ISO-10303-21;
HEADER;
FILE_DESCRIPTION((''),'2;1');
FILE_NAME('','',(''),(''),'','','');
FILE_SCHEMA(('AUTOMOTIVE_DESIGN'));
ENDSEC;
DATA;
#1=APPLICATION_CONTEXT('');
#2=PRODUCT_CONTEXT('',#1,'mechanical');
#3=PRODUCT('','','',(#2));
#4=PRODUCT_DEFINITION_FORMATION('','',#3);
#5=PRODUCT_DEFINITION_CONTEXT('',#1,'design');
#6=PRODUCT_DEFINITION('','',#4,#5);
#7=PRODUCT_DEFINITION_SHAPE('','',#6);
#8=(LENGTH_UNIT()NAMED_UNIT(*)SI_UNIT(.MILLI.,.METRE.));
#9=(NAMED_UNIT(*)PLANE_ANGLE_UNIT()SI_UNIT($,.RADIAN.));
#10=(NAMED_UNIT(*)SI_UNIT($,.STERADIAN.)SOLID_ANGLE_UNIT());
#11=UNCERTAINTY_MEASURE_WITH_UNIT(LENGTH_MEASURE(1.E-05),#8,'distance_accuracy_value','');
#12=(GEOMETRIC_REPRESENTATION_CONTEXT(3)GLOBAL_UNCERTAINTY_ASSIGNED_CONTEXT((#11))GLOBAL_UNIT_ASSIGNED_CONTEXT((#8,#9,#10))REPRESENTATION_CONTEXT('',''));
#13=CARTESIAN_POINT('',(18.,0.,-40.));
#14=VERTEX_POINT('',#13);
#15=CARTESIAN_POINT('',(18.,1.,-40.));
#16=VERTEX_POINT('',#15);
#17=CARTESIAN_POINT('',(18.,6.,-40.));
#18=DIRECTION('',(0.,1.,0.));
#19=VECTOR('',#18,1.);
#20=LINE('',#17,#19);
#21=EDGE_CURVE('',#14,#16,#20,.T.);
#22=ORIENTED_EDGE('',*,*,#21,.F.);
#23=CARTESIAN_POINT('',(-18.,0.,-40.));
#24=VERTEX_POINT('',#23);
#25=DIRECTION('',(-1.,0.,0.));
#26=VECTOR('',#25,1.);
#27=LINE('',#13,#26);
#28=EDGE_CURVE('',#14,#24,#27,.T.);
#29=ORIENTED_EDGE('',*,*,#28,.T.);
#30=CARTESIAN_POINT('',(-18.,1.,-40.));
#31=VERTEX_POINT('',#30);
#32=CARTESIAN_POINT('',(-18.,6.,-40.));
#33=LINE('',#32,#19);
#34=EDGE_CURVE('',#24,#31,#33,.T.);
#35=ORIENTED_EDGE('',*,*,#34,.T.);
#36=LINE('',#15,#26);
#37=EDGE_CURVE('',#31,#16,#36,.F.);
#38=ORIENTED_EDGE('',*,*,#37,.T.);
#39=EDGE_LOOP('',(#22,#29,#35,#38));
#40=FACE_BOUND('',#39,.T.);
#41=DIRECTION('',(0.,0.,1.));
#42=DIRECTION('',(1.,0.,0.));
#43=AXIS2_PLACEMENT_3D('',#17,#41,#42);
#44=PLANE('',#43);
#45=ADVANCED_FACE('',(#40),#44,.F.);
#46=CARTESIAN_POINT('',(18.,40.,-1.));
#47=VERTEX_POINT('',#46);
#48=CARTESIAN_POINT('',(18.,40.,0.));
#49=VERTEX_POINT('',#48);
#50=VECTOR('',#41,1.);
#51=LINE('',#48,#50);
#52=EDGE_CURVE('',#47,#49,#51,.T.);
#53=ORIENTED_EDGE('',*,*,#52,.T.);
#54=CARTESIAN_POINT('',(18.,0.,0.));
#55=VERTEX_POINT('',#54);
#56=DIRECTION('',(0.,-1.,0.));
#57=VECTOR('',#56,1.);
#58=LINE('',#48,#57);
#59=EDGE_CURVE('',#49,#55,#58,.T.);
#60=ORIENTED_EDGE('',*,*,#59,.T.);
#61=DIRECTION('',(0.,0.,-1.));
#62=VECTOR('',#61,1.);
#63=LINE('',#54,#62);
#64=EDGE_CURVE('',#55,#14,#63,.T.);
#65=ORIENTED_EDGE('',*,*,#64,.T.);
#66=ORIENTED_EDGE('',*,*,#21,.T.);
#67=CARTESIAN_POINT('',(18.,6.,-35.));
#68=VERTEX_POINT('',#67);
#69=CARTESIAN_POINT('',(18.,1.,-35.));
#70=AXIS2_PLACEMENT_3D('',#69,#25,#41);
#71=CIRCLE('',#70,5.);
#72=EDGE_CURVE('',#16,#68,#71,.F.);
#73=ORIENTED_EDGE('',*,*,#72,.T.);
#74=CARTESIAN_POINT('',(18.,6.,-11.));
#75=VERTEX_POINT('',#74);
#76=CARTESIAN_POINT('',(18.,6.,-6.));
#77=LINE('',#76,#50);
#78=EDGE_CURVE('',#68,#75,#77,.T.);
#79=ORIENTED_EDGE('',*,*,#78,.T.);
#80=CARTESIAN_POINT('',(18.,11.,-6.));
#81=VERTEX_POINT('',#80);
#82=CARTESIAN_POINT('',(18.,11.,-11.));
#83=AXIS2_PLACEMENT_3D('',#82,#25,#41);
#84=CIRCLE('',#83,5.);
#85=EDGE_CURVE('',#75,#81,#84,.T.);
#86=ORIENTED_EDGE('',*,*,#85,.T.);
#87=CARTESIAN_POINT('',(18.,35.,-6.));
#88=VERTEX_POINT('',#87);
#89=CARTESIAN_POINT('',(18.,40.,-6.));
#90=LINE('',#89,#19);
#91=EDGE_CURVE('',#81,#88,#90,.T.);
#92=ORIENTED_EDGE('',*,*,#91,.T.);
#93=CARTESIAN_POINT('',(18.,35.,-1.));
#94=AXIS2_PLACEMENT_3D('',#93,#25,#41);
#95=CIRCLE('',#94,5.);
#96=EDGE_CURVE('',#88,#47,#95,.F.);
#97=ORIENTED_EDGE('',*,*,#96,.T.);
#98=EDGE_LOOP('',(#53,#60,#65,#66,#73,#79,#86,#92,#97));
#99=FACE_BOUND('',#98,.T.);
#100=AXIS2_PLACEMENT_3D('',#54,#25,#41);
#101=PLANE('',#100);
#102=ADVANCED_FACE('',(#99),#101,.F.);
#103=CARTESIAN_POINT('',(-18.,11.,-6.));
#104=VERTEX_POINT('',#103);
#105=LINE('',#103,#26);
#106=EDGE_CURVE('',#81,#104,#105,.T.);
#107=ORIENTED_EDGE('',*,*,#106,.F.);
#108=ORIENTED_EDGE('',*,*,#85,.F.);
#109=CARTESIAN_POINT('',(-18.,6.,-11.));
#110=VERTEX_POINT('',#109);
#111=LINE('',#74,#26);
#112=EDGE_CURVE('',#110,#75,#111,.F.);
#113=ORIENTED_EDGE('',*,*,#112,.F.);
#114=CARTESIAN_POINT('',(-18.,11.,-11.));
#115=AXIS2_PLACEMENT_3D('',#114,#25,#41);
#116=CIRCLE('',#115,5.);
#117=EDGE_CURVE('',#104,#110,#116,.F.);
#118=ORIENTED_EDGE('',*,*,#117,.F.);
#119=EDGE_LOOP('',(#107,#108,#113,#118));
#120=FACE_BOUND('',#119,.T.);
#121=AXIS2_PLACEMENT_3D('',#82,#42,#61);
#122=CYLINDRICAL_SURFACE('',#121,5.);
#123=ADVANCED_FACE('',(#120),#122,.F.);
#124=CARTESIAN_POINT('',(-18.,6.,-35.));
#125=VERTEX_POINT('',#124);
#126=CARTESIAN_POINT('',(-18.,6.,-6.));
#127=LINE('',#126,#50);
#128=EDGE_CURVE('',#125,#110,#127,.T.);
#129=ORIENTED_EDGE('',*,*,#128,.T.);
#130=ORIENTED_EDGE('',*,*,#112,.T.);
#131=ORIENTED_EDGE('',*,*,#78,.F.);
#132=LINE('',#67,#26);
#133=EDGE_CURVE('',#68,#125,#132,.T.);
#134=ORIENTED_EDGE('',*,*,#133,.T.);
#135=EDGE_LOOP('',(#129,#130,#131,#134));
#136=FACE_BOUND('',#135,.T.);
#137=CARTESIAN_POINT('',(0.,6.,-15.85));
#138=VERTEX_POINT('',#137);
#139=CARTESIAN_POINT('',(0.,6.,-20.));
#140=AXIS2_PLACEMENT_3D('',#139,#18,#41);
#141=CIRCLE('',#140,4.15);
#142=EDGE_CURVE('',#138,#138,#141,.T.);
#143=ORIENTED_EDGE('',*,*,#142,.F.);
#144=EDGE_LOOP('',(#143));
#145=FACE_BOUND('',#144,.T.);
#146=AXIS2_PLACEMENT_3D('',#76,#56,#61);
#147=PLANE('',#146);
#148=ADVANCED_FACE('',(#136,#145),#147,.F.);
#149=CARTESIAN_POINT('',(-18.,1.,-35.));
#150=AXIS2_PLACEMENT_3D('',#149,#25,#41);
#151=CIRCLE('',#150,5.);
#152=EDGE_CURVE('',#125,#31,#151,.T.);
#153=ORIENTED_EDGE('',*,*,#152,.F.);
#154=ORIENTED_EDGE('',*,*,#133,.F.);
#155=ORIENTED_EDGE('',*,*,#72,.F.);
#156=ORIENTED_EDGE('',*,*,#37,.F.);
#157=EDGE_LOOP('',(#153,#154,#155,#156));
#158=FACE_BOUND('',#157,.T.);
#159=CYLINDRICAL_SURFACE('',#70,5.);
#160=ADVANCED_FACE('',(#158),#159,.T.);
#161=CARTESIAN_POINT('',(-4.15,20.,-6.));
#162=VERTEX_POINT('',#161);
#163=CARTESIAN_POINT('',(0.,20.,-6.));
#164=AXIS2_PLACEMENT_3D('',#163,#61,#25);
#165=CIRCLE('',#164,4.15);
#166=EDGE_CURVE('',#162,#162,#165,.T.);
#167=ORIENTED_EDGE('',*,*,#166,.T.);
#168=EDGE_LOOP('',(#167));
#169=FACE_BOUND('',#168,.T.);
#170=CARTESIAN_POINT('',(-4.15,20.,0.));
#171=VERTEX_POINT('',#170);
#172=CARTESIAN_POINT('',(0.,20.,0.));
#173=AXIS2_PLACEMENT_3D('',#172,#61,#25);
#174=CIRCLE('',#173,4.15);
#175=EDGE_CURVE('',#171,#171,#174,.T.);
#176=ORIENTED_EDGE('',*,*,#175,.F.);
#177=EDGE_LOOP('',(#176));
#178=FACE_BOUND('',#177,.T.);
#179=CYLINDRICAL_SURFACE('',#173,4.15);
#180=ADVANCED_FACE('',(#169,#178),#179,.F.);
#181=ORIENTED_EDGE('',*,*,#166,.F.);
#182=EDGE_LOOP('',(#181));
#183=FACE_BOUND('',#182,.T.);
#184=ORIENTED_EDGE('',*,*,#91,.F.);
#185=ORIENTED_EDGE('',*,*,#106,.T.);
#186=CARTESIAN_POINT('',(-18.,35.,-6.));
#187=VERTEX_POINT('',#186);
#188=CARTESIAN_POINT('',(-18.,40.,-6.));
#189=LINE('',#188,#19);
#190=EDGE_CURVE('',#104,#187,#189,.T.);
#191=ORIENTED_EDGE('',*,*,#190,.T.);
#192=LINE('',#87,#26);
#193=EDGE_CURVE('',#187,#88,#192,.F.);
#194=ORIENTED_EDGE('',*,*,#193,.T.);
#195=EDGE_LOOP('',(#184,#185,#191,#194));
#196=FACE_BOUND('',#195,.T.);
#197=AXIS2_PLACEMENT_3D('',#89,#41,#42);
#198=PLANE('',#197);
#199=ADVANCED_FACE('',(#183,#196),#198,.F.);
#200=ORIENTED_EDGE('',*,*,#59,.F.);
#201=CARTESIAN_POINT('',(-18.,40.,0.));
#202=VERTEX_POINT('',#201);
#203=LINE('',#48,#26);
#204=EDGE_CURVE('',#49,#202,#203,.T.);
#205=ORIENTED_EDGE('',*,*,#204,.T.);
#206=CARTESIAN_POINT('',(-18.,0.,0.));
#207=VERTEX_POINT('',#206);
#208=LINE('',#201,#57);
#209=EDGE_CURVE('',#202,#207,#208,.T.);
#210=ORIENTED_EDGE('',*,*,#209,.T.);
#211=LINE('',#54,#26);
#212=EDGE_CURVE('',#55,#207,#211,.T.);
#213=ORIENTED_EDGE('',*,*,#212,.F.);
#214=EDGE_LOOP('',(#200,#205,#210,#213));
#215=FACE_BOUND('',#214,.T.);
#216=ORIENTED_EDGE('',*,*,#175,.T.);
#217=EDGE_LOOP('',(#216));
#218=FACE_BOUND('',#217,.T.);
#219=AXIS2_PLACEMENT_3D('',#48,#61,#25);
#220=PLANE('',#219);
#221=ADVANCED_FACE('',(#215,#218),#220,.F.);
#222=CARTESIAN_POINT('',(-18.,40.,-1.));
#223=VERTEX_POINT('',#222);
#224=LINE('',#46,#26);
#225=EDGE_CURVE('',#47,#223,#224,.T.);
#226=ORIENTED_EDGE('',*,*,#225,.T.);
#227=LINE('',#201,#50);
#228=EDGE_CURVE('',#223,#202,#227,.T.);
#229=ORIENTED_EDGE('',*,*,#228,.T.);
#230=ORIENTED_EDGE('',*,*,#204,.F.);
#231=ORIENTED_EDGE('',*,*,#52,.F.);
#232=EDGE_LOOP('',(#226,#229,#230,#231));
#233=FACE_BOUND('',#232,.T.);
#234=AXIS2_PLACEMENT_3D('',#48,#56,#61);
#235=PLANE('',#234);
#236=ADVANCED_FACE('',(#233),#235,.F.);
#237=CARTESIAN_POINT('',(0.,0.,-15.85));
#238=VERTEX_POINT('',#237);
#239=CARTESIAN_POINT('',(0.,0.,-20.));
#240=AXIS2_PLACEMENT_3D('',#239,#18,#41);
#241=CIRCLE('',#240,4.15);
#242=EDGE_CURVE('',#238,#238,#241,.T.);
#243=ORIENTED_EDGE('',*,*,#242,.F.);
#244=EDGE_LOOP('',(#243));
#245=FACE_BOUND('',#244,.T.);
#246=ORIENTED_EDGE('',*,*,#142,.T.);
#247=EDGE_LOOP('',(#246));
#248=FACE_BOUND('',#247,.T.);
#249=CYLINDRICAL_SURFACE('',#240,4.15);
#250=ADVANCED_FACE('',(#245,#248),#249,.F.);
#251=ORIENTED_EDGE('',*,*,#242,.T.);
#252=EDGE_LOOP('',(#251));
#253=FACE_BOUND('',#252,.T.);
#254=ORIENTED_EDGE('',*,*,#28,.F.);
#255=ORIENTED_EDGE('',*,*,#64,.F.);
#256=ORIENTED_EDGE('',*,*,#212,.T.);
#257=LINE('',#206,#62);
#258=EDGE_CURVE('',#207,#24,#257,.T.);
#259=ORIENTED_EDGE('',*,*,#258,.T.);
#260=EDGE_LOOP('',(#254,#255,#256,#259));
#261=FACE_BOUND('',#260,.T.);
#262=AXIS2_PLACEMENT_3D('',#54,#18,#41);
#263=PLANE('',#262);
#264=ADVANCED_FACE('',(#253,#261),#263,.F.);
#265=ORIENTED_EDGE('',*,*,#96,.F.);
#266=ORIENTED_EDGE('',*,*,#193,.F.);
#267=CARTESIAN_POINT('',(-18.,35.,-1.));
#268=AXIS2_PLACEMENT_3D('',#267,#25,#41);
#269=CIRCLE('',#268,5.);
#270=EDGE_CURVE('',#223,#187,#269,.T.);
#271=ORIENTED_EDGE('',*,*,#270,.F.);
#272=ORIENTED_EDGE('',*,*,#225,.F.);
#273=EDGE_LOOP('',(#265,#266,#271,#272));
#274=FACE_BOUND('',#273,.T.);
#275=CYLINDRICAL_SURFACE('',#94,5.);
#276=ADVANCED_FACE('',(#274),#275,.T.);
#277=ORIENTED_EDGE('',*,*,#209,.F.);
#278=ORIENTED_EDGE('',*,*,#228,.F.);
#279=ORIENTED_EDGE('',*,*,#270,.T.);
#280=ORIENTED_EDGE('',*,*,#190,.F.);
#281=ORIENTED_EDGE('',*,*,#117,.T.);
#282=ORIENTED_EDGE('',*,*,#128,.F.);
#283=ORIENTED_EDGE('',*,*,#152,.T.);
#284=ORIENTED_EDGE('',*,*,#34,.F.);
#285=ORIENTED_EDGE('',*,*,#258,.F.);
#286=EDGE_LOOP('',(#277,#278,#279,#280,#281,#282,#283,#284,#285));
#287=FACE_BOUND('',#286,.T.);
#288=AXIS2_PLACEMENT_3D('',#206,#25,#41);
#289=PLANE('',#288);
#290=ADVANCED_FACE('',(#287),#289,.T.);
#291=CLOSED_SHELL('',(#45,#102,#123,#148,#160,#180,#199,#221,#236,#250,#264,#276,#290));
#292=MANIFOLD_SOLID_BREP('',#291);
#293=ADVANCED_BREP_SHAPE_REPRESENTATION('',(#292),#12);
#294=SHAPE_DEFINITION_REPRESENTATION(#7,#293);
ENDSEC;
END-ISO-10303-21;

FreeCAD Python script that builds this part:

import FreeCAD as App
import Part
import Sketcher
Q = App.Units.Quantity


def edges_at(feature, points):
    """Names of the edges that pass closest to the given points."""
    edges = feature.Shape.Edges
    near = lambda p: min(range(len(edges)), key=lambda i: edges[i].distToShape(Part.Vertex(*p))[0])
    return sorted({f"Edge{near(p) + 1}" for p in points})


def add_polygon(sketch, points):
    """Adds a closed chain of lines whose ends are joined by coincident constraints."""
    first, n = sketch.GeometryCount, len(points)
    for a, b in zip(points, points[1:] + points[:1]):
        sketch.addGeometry(Part.LineSegment(App.Vector(*a, 0), App.Vector(*b, 0)), False)
    for i in range(n):
        sketch.addConstraint(Sketcher.Constraint("Coincident", first + i, 2, first + (i + 1) % n, 1))

doc = App.newDocument("Part")
body = doc.addObject("PartDesign::Body", "Body")

sketch1 = body.newObject("Sketcher::SketchObject", "Sketch")
sketch1.AttachmentSupport = (doc.getObject("YZ_Plane"), [""])
sketch1.MapMode = "FlatFace"
add_polygon(sketch1, [(40, 0), (0, 0), (0, -40), (6, -40), (6, -6), (40, -6)])
sketch1.addConstraint([
    Sketcher.Constraint("Horizontal", 0),
    Sketcher.Constraint("Vertical", 1),
    Sketcher.Constraint("Horizontal", 2),
    Sketcher.Constraint("Vertical", 3),
    Sketcher.Constraint("Horizontal", 4),
    Sketcher.Constraint("Vertical", 5),
    Sketcher.Constraint("Coincident", 0, 2, -1, 1),
    Sketcher.Constraint("Equal", 0, 1),
    Sketcher.Constraint("Equal", 4, 3),
    Sketcher.Constraint("DistanceX", 0, 2, 0, 1, Q("40 mm")),
    Sketcher.Constraint("DistanceX", 2, 1, 2, 2, Q("6 mm")),
])
pad1 = body.newObject("PartDesign::Pad", "Pad")
pad1.Profile = sketch1
pad1.Length = 36
pad1.Midplane = True

sketch2 = body.newObject("Sketcher::SketchObject", "Sketch001")
sketch2.AttachmentSupport = (doc.getObject("XZ_Plane"), [""])
sketch2.MapMode = "FlatFace"
sketch2.AttachmentOffset = App.Placement(App.Vector(0, 0, -6), App.Rotation())
sketch2.addGeometry(Part.Circle(App.Vector(0, -20, 0), App.Vector(0, 0, 1), 4.2), False)
sketch2.addConstraint([
    Sketcher.Constraint("PointOnObject", 0, 3, -2),
    Sketcher.Constraint("Diameter", 0, Q("8.3 mm")),
    Sketcher.Constraint("DistanceY", 0, 3, -1, 1, Q("20 mm")),
])
pocket1 = body.newObject("PartDesign::Pocket", "Pocket")
pocket1.Profile = sketch2
pocket1.Type = "ThroughAll"
pocket1.Reversed = True

sketch3 = body.newObject("Sketcher::SketchObject", "Sketch002")
sketch3.AttachmentSupport = (doc.getObject("XY_Plane"), [""])
sketch3.MapMode = "FlatFace"
sketch3.AttachmentOffset = App.Placement(App.Vector(0, 0, -6), App.Rotation())
sketch3.addGeometry(Part.Circle(App.Vector(0, 20, 0), App.Vector(0, 0, 1), 4.2), False)
sketch3.addConstraint([
    Sketcher.Constraint("PointOnObject", 0, 3, -2),
    Sketcher.Constraint("Diameter", 0, Q("8.3 mm")),
    Sketcher.Constraint("DistanceY", -1, 1, 0, 3, Q("20 mm")),
])
pocket2 = body.newObject("PartDesign::Pocket", "Pocket001")
pocket2.Profile = sketch3
pocket2.Type = "ThroughAll"
pocket2.Reversed = True
doc.recompute()

fillet = body.newObject("PartDesign::Fillet", "Fillet")
fillet.Base = (pocket2, edges_at(pocket2, [(0, 40, -6), (0, 6, -6), (0, 6, -40)]))
fillet.Radius = 5

doc.recompute()
